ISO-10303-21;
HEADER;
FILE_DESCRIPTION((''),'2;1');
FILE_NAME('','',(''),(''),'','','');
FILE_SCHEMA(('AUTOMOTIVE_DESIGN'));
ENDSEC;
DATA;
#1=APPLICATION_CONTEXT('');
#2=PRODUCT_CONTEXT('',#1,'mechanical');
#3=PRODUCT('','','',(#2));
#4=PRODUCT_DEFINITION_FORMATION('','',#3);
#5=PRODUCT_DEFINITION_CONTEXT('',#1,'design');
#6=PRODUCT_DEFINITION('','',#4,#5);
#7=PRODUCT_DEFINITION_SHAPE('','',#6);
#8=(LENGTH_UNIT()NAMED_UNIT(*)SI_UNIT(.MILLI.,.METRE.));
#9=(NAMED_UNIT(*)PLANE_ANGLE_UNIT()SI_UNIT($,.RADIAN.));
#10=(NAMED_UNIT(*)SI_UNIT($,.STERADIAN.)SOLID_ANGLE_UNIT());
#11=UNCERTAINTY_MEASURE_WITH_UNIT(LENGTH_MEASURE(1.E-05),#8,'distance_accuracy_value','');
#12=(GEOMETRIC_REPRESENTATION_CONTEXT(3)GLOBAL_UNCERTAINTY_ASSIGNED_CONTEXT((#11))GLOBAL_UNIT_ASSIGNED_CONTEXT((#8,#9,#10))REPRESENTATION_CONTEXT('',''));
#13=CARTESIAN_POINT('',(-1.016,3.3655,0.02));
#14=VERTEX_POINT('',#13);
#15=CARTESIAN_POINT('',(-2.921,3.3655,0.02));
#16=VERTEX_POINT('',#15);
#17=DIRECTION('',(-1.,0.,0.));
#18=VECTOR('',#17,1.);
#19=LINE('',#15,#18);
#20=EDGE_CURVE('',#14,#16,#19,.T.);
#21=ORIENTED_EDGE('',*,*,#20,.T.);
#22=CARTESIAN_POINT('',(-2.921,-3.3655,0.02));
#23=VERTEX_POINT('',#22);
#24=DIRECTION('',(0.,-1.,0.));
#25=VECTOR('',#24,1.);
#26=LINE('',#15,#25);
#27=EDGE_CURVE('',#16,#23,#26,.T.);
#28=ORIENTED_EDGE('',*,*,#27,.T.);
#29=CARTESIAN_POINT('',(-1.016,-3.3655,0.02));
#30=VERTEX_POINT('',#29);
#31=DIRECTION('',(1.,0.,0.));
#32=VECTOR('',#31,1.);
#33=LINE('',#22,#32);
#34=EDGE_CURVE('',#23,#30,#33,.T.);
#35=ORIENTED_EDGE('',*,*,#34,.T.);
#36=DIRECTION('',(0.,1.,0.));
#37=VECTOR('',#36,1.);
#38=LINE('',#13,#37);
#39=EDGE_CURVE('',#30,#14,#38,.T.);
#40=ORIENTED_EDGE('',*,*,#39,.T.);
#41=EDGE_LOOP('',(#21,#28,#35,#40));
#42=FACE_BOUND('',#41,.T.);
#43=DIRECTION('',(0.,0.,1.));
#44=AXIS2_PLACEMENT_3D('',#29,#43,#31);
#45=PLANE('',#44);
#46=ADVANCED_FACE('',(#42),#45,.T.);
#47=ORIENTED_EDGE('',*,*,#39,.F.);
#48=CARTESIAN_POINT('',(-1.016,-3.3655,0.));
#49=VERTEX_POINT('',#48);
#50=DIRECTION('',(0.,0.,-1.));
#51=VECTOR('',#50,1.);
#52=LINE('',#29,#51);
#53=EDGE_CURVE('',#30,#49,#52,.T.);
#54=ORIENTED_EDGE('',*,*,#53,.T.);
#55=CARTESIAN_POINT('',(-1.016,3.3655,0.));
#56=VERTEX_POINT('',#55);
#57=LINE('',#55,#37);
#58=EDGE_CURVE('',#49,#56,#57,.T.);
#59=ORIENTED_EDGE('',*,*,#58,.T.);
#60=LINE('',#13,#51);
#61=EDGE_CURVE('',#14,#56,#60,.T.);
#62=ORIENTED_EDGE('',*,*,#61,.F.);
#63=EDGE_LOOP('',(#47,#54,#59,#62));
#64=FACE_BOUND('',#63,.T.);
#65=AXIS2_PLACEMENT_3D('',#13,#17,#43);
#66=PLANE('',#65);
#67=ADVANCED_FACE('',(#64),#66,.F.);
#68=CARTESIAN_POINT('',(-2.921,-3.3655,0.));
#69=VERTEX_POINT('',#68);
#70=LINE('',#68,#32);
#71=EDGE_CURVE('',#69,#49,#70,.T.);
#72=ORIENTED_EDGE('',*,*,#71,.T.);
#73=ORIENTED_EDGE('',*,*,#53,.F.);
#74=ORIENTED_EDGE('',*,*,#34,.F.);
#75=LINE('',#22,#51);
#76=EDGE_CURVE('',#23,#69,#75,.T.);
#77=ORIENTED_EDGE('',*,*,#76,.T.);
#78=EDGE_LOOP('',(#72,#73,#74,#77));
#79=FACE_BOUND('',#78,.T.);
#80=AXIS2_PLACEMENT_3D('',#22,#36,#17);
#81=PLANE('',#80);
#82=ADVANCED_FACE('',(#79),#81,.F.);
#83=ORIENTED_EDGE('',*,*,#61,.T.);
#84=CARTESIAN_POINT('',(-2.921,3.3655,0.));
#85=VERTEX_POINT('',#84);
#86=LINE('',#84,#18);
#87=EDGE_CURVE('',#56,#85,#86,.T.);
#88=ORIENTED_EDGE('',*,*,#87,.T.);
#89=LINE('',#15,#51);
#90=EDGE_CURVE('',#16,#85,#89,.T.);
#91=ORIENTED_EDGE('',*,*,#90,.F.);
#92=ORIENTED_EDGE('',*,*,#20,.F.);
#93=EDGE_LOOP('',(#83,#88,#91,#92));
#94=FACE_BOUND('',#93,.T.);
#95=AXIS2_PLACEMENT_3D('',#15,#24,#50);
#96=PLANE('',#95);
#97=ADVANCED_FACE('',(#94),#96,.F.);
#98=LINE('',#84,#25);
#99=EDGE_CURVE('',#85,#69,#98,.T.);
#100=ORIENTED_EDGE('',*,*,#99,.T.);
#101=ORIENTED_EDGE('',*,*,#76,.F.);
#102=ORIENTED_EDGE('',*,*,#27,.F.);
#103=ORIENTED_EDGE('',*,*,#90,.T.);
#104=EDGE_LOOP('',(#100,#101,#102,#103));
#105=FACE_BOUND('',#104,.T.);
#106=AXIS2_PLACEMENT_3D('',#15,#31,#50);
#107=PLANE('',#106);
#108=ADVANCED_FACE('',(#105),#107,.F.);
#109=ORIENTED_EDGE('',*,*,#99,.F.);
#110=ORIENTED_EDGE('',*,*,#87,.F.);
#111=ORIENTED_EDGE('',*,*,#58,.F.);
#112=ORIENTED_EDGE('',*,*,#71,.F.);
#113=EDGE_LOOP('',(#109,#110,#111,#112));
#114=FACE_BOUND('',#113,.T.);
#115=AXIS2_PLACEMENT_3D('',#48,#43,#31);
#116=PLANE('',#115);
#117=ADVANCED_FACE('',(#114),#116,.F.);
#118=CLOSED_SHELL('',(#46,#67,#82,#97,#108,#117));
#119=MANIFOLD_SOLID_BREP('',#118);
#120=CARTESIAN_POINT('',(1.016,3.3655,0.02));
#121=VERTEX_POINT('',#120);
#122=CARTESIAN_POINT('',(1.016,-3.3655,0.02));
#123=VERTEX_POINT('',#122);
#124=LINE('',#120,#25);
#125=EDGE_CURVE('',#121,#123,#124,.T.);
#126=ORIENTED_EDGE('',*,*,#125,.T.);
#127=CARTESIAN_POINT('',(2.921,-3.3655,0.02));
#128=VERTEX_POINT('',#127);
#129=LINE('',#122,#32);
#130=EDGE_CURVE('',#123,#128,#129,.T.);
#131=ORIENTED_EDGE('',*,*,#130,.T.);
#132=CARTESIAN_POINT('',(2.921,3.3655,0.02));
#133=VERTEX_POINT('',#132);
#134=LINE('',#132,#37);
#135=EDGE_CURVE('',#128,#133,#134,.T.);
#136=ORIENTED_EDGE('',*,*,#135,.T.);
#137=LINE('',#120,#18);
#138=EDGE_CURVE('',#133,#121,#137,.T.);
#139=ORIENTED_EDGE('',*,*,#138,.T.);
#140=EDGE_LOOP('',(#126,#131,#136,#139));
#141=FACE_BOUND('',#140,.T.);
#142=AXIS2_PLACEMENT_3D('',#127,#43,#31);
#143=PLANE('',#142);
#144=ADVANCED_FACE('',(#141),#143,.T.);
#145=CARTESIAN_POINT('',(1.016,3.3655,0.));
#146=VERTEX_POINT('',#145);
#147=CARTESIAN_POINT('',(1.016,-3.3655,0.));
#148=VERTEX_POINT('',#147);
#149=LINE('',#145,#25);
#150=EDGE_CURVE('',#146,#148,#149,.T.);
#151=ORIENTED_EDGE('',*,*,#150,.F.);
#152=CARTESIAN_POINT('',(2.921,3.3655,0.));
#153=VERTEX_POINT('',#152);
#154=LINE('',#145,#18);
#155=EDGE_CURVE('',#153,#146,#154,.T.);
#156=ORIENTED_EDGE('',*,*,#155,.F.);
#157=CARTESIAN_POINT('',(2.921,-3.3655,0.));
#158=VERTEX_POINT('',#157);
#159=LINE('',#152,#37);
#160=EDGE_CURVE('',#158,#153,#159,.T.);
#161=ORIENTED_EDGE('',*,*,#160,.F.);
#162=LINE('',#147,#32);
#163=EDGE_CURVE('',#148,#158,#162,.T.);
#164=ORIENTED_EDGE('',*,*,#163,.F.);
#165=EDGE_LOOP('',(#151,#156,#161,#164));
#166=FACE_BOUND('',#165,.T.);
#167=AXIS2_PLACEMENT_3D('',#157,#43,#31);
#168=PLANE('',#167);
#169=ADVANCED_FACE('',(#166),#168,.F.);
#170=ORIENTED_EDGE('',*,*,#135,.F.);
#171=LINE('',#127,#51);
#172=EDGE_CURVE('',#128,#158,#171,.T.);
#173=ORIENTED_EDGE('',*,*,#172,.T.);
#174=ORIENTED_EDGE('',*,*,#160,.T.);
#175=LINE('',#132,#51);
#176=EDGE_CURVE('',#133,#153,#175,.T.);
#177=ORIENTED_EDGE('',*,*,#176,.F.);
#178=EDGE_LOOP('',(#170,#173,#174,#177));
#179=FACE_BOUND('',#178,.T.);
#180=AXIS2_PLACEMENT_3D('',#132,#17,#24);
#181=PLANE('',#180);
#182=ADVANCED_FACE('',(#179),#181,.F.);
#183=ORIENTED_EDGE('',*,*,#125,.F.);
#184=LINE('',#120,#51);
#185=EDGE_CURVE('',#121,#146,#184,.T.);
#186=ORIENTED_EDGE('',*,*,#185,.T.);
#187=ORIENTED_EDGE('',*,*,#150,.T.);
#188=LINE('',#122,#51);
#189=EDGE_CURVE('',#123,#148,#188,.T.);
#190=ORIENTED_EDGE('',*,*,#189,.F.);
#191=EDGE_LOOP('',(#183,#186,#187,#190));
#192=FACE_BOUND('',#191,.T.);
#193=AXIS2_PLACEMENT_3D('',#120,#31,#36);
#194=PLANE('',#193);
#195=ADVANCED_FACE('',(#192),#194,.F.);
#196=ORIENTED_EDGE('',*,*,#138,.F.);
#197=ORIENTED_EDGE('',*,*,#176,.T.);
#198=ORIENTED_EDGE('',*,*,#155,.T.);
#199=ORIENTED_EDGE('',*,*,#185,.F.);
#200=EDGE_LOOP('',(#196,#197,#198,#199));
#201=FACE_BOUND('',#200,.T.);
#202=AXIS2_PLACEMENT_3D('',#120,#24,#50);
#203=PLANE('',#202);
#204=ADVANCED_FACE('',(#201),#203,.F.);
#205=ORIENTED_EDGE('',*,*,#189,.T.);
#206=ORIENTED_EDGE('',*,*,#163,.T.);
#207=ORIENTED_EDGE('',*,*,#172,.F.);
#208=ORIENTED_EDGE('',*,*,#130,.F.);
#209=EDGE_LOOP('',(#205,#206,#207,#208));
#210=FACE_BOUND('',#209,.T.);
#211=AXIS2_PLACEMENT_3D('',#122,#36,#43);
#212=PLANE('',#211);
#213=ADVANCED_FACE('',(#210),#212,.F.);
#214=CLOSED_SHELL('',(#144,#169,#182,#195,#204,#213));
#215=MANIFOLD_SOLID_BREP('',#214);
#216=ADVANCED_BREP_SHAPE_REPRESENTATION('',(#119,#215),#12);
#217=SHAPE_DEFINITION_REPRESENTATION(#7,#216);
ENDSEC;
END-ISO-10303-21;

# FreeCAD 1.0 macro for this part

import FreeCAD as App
import Part
import Sketcher

V = App.Vector
Q = App.Units.Quantity

doc = App.newDocument("Part")
params = doc.addObject("Spreadsheet::Sheet", "Params")
for row, (alias, value) in enumerate([
    ("sketch1_width", "0.075 in"),
    ("sketch1_height", "0.265 in"),
    ("pad1_length", "0.02 mm"),
    ("sketch2_width", "0.075 in"),
    ("sketch2_height", "0.265 in"),
    ("pad2_length", "0.02 mm"),
], start=1):
    params.set(f"A{row}", alias)
    params.set(f"B{row}", "=" + value)
    params.setAlias(f"B{row}", alias)

body = doc.addObject("PartDesign::Body", "Body")

sketch1 = body.newObject("Sketcher::SketchObject", "Sketch")
sketch1.AttachmentSupport = (doc.getObject("XY_Plane"), [""])
sketch1.MapMode = "FlatFace"
sketch1.addGeometry(Part.LineSegment(V(-2.9, 3.4, 0), V(-2.9, -3.4, 0)), False)
sketch1.addGeometry(Part.LineSegment(V(-2.9, -3.4, 0), V(-1, -3.4, 0)), False)
sketch1.addGeometry(Part.LineSegment(V(-1, -3.4, 0), V(-1, 3.4, 0)), False)
sketch1.addGeometry(Part.LineSegment(V(-1, 3.4, 0), V(-2.9, 3.4, 0)), False)
sketch1.addConstraint(Sketcher.Constraint("Coincident", 0, 2, 1, 1))
sketch1.addConstraint(Sketcher.Constraint("Coincident", 1, 2, 2, 1))
sketch1.addConstraint(Sketcher.Constraint("Coincident", 2, 2, 3, 1))
sketch1.addConstraint(Sketcher.Constraint("Coincident", 3, 2, 0, 1))
sketch1.addConstraint(Sketcher.Constraint("Vertical", 0))
sketch1.addConstraint(Sketcher.Constraint("Horizontal", 1))
sketch1.addConstraint(Sketcher.Constraint("Vertical", 2))
sketch1.addConstraint(Sketcher.Constraint("Horizontal", 3))
sketch1.addConstraint(Sketcher.Constraint("DistanceX", 1, 1, 1, 2, Q("0.075 in")))
sketch1.addConstraint(Sketcher.Constraint("DistanceY", 0, 2, 0, 1, Q("0.265 in")))
sketch1.addConstraint(Sketcher.Constraint("DistanceX", 1, 2, -1, 1, Q("0.04 in")))
sketch1.addConstraint(Sketcher.Constraint("DistanceY", 0, 2, -1, 1, Q("0.1325 in")))
sketch1.setExpression("Constraints[8]", "Params.sketch1_width")
sketch1.setExpression("Constraints[9]", "Params.sketch1_height")
pad1 = body.newObject("PartDesign::Pad", "Pad")
pad1.Profile = sketch1
pad1.setExpression("Length", "Params.pad1_length")
body2 = doc.addObject("PartDesign::Body", "Body001")

sketch2 = body2.newObject("Sketcher::SketchObject", "Sketch001")
sketch2.AttachmentSupport = (doc.getObject("XY_Plane001"), [""])
sketch2.MapMode = "FlatFace"
sketch2.addGeometry(Part.LineSegment(V(1, 3.4, 0), V(1, -3.4, 0)), False)
sketch2.addGeometry(Part.LineSegment(V(1, -3.4, 0), V(2.9, -3.4, 0)), False)
sketch2.addGeometry(Part.LineSegment(V(2.9, -3.4, 0), V(2.9, 3.4, 0)), False)
sketch2.addGeometry(Part.LineSegment(V(2.9, 3.4, 0), V(1, 3.4, 0)), False)
sketch2.addConstraint(Sketcher.Constraint("Coincident", 0, 2, 1, 1))
sketch2.addConstraint(Sketcher.Constraint("Coincident", 1, 2, 2, 1))
sketch2.addConstraint(Sketcher.Constraint("Coincident", 2, 2, 3, 1))
sketch2.addConstraint(Sketcher.Constraint("Coincident", 3, 2, 0, 1))
sketch2.addConstraint(Sketcher.Constraint("Vertical", 0))
sketch2.addConstraint(Sketcher.Constraint("Horizontal", 1))
sketch2.addConstraint(Sketcher.Constraint("Vertical", 2))
sketch2.addConstraint(Sketcher.Constraint("Horizontal", 3))
sketch2.addConstraint(Sketcher.Constraint("DistanceX", 1, 1, 1, 2, Q("0.075 in")))
sketch2.addConstraint(Sketcher.Constraint("DistanceY", 0, 2, 0, 1, Q("0.265 in")))
sketch2.addConstraint(Sketcher.Constraint("DistanceX", -1, 1, 0, 2, Q("0.04 in")))
sketch2.addConstraint(Sketcher.Constraint("DistanceY", 0, 2, -1, 1, Q("0.1325 in")))
sketch2.setExpression("Constraints[8]", "Params.sketch2_width")
sketch2.setExpression("Constraints[9]", "Params.sketch2_height")
pad2 = body2.newObject("PartDesign::Pad", "Pad001")
pad2.Profile = sketch2
pad2.setExpression("Length", "Params.pad2_length")

doc.recompute()
